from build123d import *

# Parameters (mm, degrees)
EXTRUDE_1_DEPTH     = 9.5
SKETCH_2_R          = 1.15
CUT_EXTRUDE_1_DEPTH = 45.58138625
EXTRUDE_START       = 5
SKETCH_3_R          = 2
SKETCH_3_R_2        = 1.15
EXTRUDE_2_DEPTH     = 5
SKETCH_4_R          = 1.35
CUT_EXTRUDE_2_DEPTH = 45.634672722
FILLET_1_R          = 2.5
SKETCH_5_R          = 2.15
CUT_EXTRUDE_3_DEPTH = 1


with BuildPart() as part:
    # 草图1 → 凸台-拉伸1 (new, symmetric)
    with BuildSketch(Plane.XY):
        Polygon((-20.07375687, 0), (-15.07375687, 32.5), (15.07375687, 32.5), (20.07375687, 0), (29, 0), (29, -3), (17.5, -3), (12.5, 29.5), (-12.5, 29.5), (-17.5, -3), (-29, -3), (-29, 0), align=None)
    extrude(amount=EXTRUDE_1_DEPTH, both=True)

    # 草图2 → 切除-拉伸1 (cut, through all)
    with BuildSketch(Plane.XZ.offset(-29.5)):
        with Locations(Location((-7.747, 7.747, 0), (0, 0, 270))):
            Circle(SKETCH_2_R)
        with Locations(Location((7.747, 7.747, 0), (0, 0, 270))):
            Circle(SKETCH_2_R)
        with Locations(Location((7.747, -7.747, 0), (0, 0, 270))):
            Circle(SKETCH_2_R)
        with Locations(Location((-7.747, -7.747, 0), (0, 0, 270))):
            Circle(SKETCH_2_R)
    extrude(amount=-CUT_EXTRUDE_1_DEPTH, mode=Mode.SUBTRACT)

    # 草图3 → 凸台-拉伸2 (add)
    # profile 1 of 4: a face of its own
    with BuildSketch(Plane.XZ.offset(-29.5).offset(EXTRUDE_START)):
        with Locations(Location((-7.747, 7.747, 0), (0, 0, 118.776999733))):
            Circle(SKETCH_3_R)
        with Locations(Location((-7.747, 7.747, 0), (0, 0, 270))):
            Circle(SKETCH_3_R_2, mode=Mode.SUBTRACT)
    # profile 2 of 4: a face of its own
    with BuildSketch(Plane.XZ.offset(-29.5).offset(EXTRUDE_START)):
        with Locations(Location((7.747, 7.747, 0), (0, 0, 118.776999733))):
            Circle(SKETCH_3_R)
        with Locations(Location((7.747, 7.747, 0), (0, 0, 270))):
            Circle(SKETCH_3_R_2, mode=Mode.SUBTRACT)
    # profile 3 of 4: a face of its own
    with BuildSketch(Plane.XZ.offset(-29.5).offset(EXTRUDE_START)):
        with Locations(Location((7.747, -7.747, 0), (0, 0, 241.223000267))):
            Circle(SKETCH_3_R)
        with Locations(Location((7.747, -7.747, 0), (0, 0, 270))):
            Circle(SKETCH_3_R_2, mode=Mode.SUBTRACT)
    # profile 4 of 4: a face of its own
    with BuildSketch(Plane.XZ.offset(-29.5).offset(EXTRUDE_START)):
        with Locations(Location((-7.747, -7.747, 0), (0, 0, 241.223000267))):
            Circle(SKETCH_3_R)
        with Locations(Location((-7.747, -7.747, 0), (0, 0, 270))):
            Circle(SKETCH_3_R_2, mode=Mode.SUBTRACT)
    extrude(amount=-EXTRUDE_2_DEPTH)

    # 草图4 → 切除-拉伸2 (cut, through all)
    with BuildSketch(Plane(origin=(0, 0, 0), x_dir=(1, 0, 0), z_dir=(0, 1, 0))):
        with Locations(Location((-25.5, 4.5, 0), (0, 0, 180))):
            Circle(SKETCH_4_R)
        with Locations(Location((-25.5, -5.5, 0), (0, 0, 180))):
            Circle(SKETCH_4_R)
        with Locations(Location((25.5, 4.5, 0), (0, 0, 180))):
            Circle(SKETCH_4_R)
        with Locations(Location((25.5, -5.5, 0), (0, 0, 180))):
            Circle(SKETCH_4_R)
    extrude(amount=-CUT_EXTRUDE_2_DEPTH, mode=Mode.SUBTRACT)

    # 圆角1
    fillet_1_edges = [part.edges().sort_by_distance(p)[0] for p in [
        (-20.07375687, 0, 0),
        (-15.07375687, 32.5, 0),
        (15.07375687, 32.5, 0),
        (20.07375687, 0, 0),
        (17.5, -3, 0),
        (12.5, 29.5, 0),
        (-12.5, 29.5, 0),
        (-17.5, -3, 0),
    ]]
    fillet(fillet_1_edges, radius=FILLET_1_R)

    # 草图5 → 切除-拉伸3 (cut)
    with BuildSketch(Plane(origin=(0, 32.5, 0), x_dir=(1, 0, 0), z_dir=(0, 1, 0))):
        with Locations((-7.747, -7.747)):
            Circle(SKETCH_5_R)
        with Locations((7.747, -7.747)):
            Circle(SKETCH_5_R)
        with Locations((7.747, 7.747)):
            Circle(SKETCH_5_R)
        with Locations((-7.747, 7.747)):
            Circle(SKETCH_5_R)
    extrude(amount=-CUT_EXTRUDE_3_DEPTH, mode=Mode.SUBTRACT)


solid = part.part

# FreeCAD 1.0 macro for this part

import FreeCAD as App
import Part
import Sketcher


def edges_at(feature, points):
    """Names of the edges that pass closest to the given points."""
    edges = feature.Shape.Edges
    near = lambda p: min(range(len(edges)), key=lambda i: edges[i].distToShape(Part.Vertex(*p))[0])
    return sorted({f"Edge{near(p) + 1}" for p in points})

doc = App.newDocument("Part")
params = doc.addObject("Spreadsheet::Sheet", "Params")
for row, (alias, value) in enumerate([
    ("sketch1_width", "25 mm"),
    ("sketch1_height", "3 mm"),
    ("sketch1_width2", "11.5 mm"),
    ("pad1_length", "19 mm"),
    ("sketch2_diameter", "2.3 mm"),
    ("sketch3_diameter", "4 mm"),
    ("sketch3_diameter2", "2.3 mm"),
    ("pad2_length", "5 mm"),
    ("sketch4_diameter", "2.7 mm"),
    ("fillet_radius", "2.5 mm"),
    ("sketch5_diameter", "4.3 mm"),
    ("pocket3_length", "1 mm"),
], start=1):
    params.set(f"A{row}", alias)
    params.set(f"B{row}", "=" + value)
    params.setAlias(f"B{row}", alias)

body = doc.addObject("PartDesign::Body", "Body")

# Sketch on XY plane
sketch1 = body.newObject("Sketcher::SketchObject", "Sketch")
sketch1.AttachmentSupport = (doc.getObject("XY_Plane"), [""])
sketch1.MapMode = "FlatFace"
sketch1.addGeometry([
    Part.LineSegment(App.Vector(-15.073757, 32.5, 0), App.Vector(-20.073757, 0, 0)),  # 0
    Part.LineSegment(App.Vector(-20.073757, 0, 0), App.Vector(-29, 0, 0)),  # 1
    Part.LineSegment(App.Vector(-29, 0, 0), App.Vector(-29, -3, 0)),  # 2
    Part.LineSegment(App.Vector(-29, -3, 0), App.Vector(-17.5, -3, 0)),  # 3
    Part.LineSegment(App.Vector(-17.5, -3, 0), App.Vector(-12.5, 29.5, 0)),  # 4
    Part.LineSegment(App.Vector(-12.5, 29.5, 0), App.Vector(12.5, 29.5, 0)),  # 5
    Part.LineSegment(App.Vector(12.5, 29.5, 0), App.Vector(17.5, -3, 0)),  # 6
    Part.LineSegment(App.Vector(17.5, -3, 0), App.Vector(29, -3, 0)),  # 7
    Part.LineSegment(App.Vector(29, -3, 0), App.Vector(29, 0, 0)),  # 8
    Part.LineSegment(App.Vector(29, 0, 0), App.Vector(20.073757, 0, 0)),  # 9
    Part.LineSegment(App.Vector(20.073757, 0, 0), App.Vector(15.073757, 32.5, 0)),  # 10
    Part.LineSegment(App.Vector(15.073757, 32.5, 0), App.Vector(-15.073757, 32.5, 0)),  # 11
], False)
sketch1.addConstraint([
    Sketcher.Constraint("Coincident", 0, 2, 1, 1),
    Sketcher.Constraint("Coincident", 1, 2, 2, 1),
    Sketcher.Constraint("Coincident", 2, 2, 3, 1),
    Sketcher.Constraint("Coincident", 3, 2, 4, 1),
    Sketcher.Constraint("Coincident", 4, 2, 5, 1),
    Sketcher.Constraint("Coincident", 5, 2, 6, 1),
    Sketcher.Constraint("Coincident", 6, 2, 7, 1),
    Sketcher.Constraint("Coincident", 7, 2, 8, 1),
    Sketcher.Constraint("Coincident", 8, 2, 9, 1),
    Sketcher.Constraint("Coincident", 9, 2, 10, 1),
    Sketcher.Constraint("Coincident", 10, 2, 11, 1),
    Sketcher.Constraint("Coincident", 11, 2, 0, 1),
    Sketcher.Constraint("Horizontal", 1),
    Sketcher.Constraint("Vertical", 2),
    Sketcher.Constraint("Horizontal", 3),
    Sketcher.Constraint("Horizontal", 5),
    Sketcher.Constraint("Horizontal", 7),
    Sketcher.Constraint("Vertical", 8),
    Sketcher.Constraint("Horizontal", 9),
    Sketcher.Constraint("Horizontal", 11),
    Sketcher.Constraint("Symmetric", 1, 2, 8, 2, -1, 1),
    Sketcher.Constraint("Symmetric", 3, 2, 6, 2, -2),
    Sketcher.Constraint("Symmetric", 0, 2, 9, 2, -2),
    Sketcher.Constraint("Parallel", 0, 4),
    Sketcher.Constraint("Parallel", 6, 10),
    Sketcher.Constraint("Equal", 0, 4),
    Sketcher.Constraint("Equal", 4, 6),
    Sketcher.Constraint("DistanceX", 5, 1, 5, 2, 25.0),
    Sketcher.Constraint("DistanceY", 2, 2, 2, 1, 3.0),
    Sketcher.Constraint("DistanceX", 3, 1, 3, 2, 11.5),
    Sketcher.Constraint("DistanceX", 1, 2, -1, 1, 29.0),
    Sketcher.Constraint("DistanceY", -1, 1, 4, 2, 29.5),
    Sketcher.Constraint("DistanceX", 1, 2, 1, 1, 8.926243),
])
sketch1.setExpression("Constraints[27]", "Params.sketch1_width")
sketch1.setExpression("Constraints[28]", "Params.sketch1_height")
sketch1.setExpression("Constraints[29]", "Params.sketch1_width2")
pad1 = body.newObject("PartDesign::Pad", "Pad")
pad1.Profile = sketch1
pad1.setExpression("Length", "Params.pad1_length")
pad1.Midplane = True

# Sketch on XZ plane
sketch2 = body.newObject("Sketcher::SketchObject", "Sketch001")
sketch2.AttachmentSupport = (doc.getObject("XZ_Plane"), [""])
sketch2.MapMode = "FlatFace"
sketch2.AttachmentOffset = App.Placement(App.Vector(0, 0, -29.5), App.Rotation())
sketch2.addGeometry([
    Part.Circle(App.Vector(-7.747, 7.747, 0), App.Vector(0, 0, 1), 1.15),
    Part.Circle(App.Vector(7.747, 7.747, 0), App.Vector(0, 0, 1), 1.15),
    Part.Circle(App.Vector(7.747, -7.747, 0), App.Vector(0, 0, 1), 1.15),
    Part.Circle(App.Vector(-7.747, -7.747, 0), App.Vector(0, 0, 1), 1.15),
], False)
sketch2.addConstraint([
    Sketcher.Constraint("Equal", 0, 1),
    Sketcher.Constraint("Equal", 1, 2),
    Sketcher.Constraint("Equal", 2, 3),
    Sketcher.Constraint("Symmetric", 0, 3, 2, 3, -1, 1),
    Sketcher.Constraint("Symmetric", 1, 3, 3, 3, -1, 1),
    Sketcher.Constraint("Symmetric", 0, 3, 1, 3, -2),
    Sketcher.Constraint("Diameter", 0, 2.3),
    Sketcher.Constraint("DistanceX", 0, 3, -1, 1, 7.747),
    Sketcher.Constraint("DistanceY", -1, 1, 0, 3, 7.747),
])
sketch2.setExpression("Constraints[6]", "Params.sketch2_diameter")
pocket1 = body.newObject("PartDesign::Pocket", "Pocket")
pocket1.Profile = sketch2
pocket1.Type = "ThroughAll"

# Sketch on XZ plane
sketch3 = body.newObject("Sketcher::SketchObject", "Sketch002")
sketch3.AttachmentSupport = (doc.getObject("XZ_Plane"), [""])
sketch3.MapMode = "FlatFace"
sketch3.AttachmentOffset = App.Placement(App.Vector(0, 0, -24.5), App.Rotation())
sketch3.addGeometry([
    Part.Circle(App.Vector(-7.747, 7.747, 0), App.Vector(0, 0, 1), 2),  # 0
    Part.Circle(App.Vector(-7.747, 7.747, 0), App.Vector(0, 0, 1), 1.15),  # 1
    Part.Circle(App.Vector(7.747, 7.747, 0), App.Vector(0, 0, 1), 2),  # 2
    Part.Circle(App.Vector(7.747, 7.747, 0), App.Vector(0, 0, 1), 1.15),  # 3
    Part.Circle(App.Vector(7.747, -7.747, 0), App.Vector(0, 0, 1), 2),  # 4
    Part.Circle(App.Vector(7.747, -7.747, 0), App.Vector(0, 0, 1), 1.15),  # 5
    Part.Circle(App.Vector(-7.747, -7.747, 0), App.Vector(0, 0, 1), 2),  # 6
    Part.Circle(App.Vector(-7.747, -7.747, 0), App.Vector(0, 0, 1), 1.15),  # 7
], False)
sketch3.addConstraint([
    Sketcher.Constraint("Coincident", 1, 3, 0, 3),
    Sketcher.Constraint("Coincident", 3, 3, 2, 3),
    Sketcher.Constraint("Coincident", 5, 3, 4, 3),
    Sketcher.Constraint("Coincident", 7, 3, 6, 3),
    Sketcher.Constraint("Equal", 0, 2),
    Sketcher.Constraint("Equal", 1, 3),
    Sketcher.Constraint("Equal", 2, 4),
    Sketcher.Constraint("Equal", 3, 5),
    Sketcher.Constraint("Equal", 4, 6),
    Sketcher.Constraint("Equal", 5, 7),
    Sketcher.Constraint("Symmetric", 0, 3, 4, 3, -1, 1),
    Sketcher.Constraint("Symmetric", 2, 3, 6, 3, -1, 1),
    Sketcher.Constraint("Symmetric", 0, 3, 2, 3, -2),
    Sketcher.Constraint("Diameter", 0, 4.0),
    Sketcher.Constraint("Diameter", 1, 2.3),
    Sketcher.Constraint("DistanceX", 0, 3, -1, 1, 7.747),
    Sketcher.Constraint("DistanceY", -1, 1, 0, 3, 7.747),
])
sketch3.setExpression("Constraints[13]", "Params.sketch3_diameter")
sketch3.setExpression("Constraints[14]", "Params.sketch3_diameter2")
pad2 = body.newObject("PartDesign::Pad", "Pad001")
pad2.Profile = sketch3
pad2.setExpression("Length", "Params.pad2_length")
pad2.Reversed = True

# Sketch on XZ plane
sketch4 = body.newObject("Sketcher::SketchObject", "Sketch003")
sketch4.AttachmentSupport = (doc.getObject("XZ_Plane"), [""])
sketch4.MapMode = "FlatFace"
sketch4.addGeometry([
    Part.Circle(App.Vector(-25.5, -4.5, 0), App.Vector(0, 0, 1), 1.35),
    Part.Circle(App.Vector(-25.5, 5.5, 0), App.Vector(0, 0, 1), 1.35),
    Part.Circle(App.Vector(25.5, -4.5, 0), App.Vector(0, 0, 1), 1.35),
    Part.Circle(App.Vector(25.5, 5.5, 0), App.Vector(0, 0, 1), 1.35),
], False)
sketch4.addConstraint([
    Sketcher.Constraint("Equal", 0, 1),
    Sketcher.Constraint("Equal", 1, 2),
    Sketcher.Constraint("Equal", 2, 3),
    Sketcher.Constraint("Symmetric", 0, 3, 2, 3, -2),
    Sketcher.Constraint("Symmetric", 1, 3, 3, 3, -2),
    Sketcher.Constraint("Vertical", 0, 3, 1, 3),
    Sketcher.Constraint("Diameter", 0, 2.7),
    Sketcher.Constraint("DistanceY", 0, 3, 1, 3, 10.0),
    Sketcher.Constraint("DistanceX", 0, 3, 2, 3, 51.0),
    Sketcher.Constraint("DistanceY", 0, 3, -1, 1, 4.5),
])
sketch4.setExpression("Constraints[6]", "Params.sketch4_diameter")
pocket2 = body.newObject("PartDesign::Pocket", "Pocket001")
pocket2.Profile = sketch4
pocket2.Type = "ThroughAll"
pocket2.Reversed = True
doc.recompute()

fillet = body.newObject("PartDesign::Fillet", "Fillet")
fillet.Base = (pocket2, edges_at(pocket2, [
    (-20.074, 0, 0),
    (-15.074, 32.5, 0),
    (15.074, 32.5, 0),
    (20.074, 0, 0),
    (17.5, -3, 0),
    (12.5, 29.5, 0),
    (-12.5, 29.5, 0),
    (-17.5, -3, 0),
]))
fillet.setExpression("Radius", "Params.fillet_radius")

# Sketch on XZ plane
sketch5 = body.newObject("Sketcher::SketchObject", "Sketch004")
sketch5.AttachmentSupport = (doc.getObject("XZ_Plane"), [""])
sketch5.MapMode = "FlatFace"
sketch5.AttachmentOffset = App.Placement(App.Vector(0, 0, -32.5), App.Rotation())
sketch5.addGeometry([
    Part.Circle(App.Vector(-7.747, 7.747, 0), App.Vector(0, 0, 1), 2.15),
    Part.Circle(App.Vector(7.747, 7.747, 0), App.Vector(0, 0, 1), 2.15),
    Part.Circle(App.Vector(7.747, -7.747, 0), App.Vector(0, 0, 1), 2.15),
    Part.Circle(App.Vector(-7.747, -7.747, 0), App.Vector(0, 0, 1), 2.15),
], False)
sketch5.addConstraint([
    Sketcher.Constraint("Equal", 0, 1),
    Sketcher.Constraint("Equal", 1, 2),
    Sketcher.Constraint("Equal", 2, 3),
    Sketcher.Constraint("Symmetric", 0, 3, 2, 3, -1, 1),
    Sketcher.Constraint("Symmetric", 1, 3, 3, 3, -1, 1),
    Sketcher.Constraint("Symmetric", 0, 3, 1, 3, -2),
    Sketcher.Constraint("Diameter", 0, 4.3),
    Sketcher.Constraint("DistanceX", 0, 3, -1, 1, 7.747),
    Sketcher.Constraint("DistanceY", -1, 1, 0, 3, 7.747),
])
sketch5.setExpression("Constraints[6]", "Params.sketch5_diameter")
pocket3 = body.newObject("PartDesign::Pocket", "Pocket002")
pocket3.Profile = sketch5
pocket3.setExpression("Length", "Params.pocket3_length")
pocket3.Reversed = True

doc.recompute()
